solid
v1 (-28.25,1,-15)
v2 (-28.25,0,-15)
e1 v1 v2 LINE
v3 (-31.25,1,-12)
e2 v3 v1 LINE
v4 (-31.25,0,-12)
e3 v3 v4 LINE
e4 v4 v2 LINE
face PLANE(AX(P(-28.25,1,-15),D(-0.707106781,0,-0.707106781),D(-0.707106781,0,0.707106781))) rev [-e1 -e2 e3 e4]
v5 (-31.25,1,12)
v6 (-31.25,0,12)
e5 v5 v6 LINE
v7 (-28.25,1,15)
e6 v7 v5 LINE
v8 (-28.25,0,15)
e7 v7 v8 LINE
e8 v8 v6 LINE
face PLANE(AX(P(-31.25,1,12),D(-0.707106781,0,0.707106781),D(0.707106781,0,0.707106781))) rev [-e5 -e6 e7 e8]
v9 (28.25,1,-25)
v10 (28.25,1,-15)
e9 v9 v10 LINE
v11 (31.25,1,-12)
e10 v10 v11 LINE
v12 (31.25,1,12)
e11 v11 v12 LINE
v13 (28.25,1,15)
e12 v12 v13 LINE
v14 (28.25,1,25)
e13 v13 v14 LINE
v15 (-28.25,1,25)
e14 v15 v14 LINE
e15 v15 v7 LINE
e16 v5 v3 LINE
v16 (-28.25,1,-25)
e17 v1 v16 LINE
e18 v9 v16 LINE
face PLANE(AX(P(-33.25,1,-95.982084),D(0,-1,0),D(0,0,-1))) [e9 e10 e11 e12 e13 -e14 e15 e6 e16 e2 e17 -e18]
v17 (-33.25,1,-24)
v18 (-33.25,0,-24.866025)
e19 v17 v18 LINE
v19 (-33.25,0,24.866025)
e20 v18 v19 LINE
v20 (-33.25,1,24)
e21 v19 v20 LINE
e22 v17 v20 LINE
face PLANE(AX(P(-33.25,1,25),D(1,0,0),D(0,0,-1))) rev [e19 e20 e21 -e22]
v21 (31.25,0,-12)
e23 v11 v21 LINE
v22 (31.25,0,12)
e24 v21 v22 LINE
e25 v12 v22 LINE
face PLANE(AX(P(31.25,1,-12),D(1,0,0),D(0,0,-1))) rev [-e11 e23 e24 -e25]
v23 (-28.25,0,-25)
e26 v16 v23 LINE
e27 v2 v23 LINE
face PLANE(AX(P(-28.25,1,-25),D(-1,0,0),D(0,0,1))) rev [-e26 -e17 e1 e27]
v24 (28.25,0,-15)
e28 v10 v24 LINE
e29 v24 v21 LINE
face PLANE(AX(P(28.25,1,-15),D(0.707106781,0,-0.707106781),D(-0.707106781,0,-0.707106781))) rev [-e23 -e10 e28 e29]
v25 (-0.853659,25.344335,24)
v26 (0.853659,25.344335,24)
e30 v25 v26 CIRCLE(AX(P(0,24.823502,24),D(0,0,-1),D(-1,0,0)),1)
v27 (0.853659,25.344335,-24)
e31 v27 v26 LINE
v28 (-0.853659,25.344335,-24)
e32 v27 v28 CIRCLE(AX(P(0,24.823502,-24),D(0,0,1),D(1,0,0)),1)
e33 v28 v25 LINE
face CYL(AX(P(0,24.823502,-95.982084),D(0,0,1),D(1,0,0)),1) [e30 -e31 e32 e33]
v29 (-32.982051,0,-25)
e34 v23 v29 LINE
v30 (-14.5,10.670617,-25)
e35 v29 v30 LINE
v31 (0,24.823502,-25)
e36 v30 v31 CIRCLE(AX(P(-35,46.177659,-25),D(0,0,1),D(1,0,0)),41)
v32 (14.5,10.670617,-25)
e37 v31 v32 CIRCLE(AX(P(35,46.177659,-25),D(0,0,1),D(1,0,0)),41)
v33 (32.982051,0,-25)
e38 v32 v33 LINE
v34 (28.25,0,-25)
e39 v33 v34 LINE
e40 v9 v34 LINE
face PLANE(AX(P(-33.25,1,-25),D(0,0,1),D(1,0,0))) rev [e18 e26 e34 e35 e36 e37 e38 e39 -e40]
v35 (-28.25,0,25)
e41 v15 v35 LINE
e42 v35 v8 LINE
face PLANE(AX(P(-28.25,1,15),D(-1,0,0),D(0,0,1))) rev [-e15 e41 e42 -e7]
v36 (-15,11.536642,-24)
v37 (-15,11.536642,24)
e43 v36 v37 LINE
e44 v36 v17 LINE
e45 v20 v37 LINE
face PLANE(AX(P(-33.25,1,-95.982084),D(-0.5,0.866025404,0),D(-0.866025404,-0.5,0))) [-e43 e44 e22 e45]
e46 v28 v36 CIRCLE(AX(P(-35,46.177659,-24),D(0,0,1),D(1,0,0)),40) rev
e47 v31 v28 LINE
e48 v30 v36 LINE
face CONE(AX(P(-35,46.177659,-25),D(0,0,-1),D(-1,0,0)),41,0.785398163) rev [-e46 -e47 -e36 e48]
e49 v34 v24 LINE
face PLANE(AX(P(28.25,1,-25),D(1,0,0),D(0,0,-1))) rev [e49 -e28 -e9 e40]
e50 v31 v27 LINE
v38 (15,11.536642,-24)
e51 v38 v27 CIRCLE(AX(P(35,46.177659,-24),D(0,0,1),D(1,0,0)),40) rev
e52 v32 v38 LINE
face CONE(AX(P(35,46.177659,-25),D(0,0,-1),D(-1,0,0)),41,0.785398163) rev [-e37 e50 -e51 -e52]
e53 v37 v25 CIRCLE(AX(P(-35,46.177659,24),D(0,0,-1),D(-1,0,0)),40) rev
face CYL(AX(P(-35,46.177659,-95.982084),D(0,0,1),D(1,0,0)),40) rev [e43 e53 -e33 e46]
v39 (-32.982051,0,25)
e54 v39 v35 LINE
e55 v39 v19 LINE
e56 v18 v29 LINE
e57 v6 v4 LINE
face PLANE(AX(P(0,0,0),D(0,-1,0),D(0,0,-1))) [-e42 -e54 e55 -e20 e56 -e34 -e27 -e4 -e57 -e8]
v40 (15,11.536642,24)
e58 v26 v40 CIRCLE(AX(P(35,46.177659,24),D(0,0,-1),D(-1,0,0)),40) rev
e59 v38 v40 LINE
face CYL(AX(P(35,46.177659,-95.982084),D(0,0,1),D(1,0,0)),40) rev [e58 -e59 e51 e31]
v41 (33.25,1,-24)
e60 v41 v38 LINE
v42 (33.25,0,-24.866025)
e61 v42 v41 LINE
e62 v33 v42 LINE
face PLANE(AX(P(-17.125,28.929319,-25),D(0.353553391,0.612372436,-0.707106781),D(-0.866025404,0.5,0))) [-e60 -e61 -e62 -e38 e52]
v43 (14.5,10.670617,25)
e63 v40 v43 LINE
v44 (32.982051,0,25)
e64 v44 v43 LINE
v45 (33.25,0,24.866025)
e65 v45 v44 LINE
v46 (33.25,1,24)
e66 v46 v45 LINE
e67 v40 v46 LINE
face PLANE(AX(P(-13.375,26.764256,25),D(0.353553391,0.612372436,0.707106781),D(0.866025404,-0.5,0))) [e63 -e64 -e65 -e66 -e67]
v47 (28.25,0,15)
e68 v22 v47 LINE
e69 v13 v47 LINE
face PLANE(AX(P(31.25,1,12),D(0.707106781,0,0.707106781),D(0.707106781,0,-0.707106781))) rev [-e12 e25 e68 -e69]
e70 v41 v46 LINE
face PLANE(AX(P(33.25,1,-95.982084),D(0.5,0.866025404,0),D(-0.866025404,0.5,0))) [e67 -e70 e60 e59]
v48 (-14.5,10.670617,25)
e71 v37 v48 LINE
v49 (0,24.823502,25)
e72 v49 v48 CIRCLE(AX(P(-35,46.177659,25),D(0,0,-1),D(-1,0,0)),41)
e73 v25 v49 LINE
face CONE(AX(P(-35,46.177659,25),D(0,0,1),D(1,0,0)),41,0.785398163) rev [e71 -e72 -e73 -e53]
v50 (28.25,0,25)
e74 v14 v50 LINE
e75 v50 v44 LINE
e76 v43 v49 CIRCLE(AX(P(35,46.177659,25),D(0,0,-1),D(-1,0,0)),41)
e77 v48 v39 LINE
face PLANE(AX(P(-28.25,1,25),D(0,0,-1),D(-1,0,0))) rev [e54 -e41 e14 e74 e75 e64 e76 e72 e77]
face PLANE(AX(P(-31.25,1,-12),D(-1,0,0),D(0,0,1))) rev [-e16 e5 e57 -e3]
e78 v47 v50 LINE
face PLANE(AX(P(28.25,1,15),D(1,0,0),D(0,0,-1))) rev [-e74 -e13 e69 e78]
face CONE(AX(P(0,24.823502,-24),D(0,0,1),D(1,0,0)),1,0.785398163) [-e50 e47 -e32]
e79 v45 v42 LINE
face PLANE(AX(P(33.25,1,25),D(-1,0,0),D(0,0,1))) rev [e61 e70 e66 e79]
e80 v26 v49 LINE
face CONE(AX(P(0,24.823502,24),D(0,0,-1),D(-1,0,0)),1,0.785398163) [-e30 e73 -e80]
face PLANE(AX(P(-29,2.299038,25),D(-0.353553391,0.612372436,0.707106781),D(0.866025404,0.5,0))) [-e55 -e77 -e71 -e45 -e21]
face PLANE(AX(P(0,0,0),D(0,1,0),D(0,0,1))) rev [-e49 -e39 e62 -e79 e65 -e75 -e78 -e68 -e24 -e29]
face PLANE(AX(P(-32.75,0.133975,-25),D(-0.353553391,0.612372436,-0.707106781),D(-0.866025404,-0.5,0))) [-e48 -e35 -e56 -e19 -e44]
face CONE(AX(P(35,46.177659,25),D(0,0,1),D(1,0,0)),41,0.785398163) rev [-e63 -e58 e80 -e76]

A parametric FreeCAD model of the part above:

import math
import FreeCAD as App
import Part
import Sketcher

V = App.Vector
Q = App.Units.Quantity


def edges_at(feature, points):
    """Names of the edges that pass closest to the given points."""
    edges = feature.Shape.Edges
    near = lambda p: min(range(len(edges)), key=lambda i: edges[i].distToShape(Part.Vertex(*p))[0])
    return sorted({f"Edge{near(p) + 1}" for p in points})

doc = App.newDocument("Part")
body = doc.addObject("PartDesign::Body", "Body")

sketch1 = body.newObject("Sketcher::SketchObject", "Sketch")
sketch1.AttachmentSupport = (doc.getObject("XZ_Plane"), [""])
sketch1.MapMode = "FlatFace"
sketch1.addGeometry(Part.LineSegment(V(-28.25, -15, 0), V(-28.25, -25, 0)), False)
sketch1.addGeometry(Part.LineSegment(V(-28.25, -25, 0), V(-33.25, -25, 0)), False)
sketch1.addGeometry(Part.LineSegment(V(-33.25, -25, 0), V(-33.25, 25, 0)), False)
sketch1.addGeometry(Part.LineSegment(V(-33.25, 25, 0), V(-28.25, 25, 0)), False)
sketch1.addGeometry(Part.LineSegment(V(-28.25, 25, 0), V(-28.25, 15, 0)), False)
sketch1.addGeometry(Part.LineSegment(V(-28.25, 15, 0), V(-31.25, 12, 0)), False)
sketch1.addGeometry(Part.LineSegment(V(-31.25, 12, 0), V(-31.25, -12, 0)), False)
sketch1.addGeometry(Part.LineSegment(V(-31.25, -12, 0), V(-28.25, -15, 0)), False)
sketch1.addConstraint(Sketcher.Constraint("Coincident", 0, 2, 1, 1))
sketch1.addConstraint(Sketcher.Constraint("Coincident", 1, 2, 2, 1))
sketch1.addConstraint(Sketcher.Constraint("Coincident", 2, 2, 3, 1))
sketch1.addConstraint(Sketcher.Constraint("Coincident", 3, 2, 4, 1))
sketch1.addConstraint(Sketcher.Constraint("Coincident", 4, 2, 5, 1))
sketch1.addConstraint(Sketcher.Constraint("Coincident", 5, 2, 6, 1))
sketch1.addConstraint(Sketcher.Constraint("Coincident", 6, 2, 7, 1))
sketch1.addConstraint(Sketcher.Constraint("Coincident", 7, 2, 0, 1))
sketch1.addConstraint(Sketcher.Constraint("Vertical", 0))
sketch1.addConstraint(Sketcher.Constraint("Horizontal", 1))
sketch1.addConstraint(Sketcher.Constraint("Vertical", 2))
sketch1.addConstraint(Sketcher.Constraint("Horizontal", 3))
sketch1.addConstraint(Sketcher.Constraint("Vertical", 4))
sketch1.addConstraint(Sketcher.Constraint("Vertical", 6))
sketch1.addConstraint(Sketcher.Constraint("Symmetric", 0, 2, 3, 2, -1))
sketch1.addConstraint(Sketcher.Constraint("Perpendicular", 5, 7))
sketch1.addConstraint(Sketcher.Constraint("Equal", 0, 4))
sketch1.addConstraint(Sketcher.Constraint("Equal", 5, 7))
sketch1.addConstraint(Sketcher.Constraint("DistanceX", 1, 2, 1, 1, Q("5 mm")))
sketch1.addConstraint(Sketcher.Constraint("DistanceY", 0, 2, 0, 1, Q("10 mm")))
sketch1.addConstraint(Sketcher.Constraint("DistanceY", 2, 1, 2, 2, Q("50 mm")))
sketch1.addConstraint(Sketcher.Constraint("DistanceY", 6, 2, 6, 1, Q("24 mm")))
sketch1.addConstraint(Sketcher.Constraint("DistanceX", 0, 2, -1, 1, Q("28.25 mm")))
pad1 = body.newObject("PartDesign::Pad", "Pad")
pad1.Profile = sketch1
pad1.Length = 1
pad1.Reversed = True
body2 = doc.addObject("PartDesign::Body", "Body001")

sketch2 = body2.newObject("Sketcher::SketchObject", "Sketch001")
sketch2.AttachmentSupport = (doc.getObject("XZ_Plane001"), [""])
sketch2.MapMode = "FlatFace"
sketch2.addGeometry(Part.LineSegment(V(33.25, -25, 0), V(28.25, -25, 0)), False)
sketch2.addGeometry(Part.LineSegment(V(28.25, -25, 0), V(28.25, -15, 0)), False)
sketch2.addGeometry(Part.LineSegment(V(28.25, -15, 0), V(31.25, -12, 0)), False)
sketch2.addGeometry(Part.LineSegment(V(31.25, -12, 0), V(31.25, 12, 0)), False)
sketch2.addGeometry(Part.LineSegment(V(31.25, 12, 0), V(28.25, 15, 0)), False)
sketch2.addGeometry(Part.LineSegment(V(28.25, 15, 0), V(28.25, 25, 0)), False)
sketch2.addGeometry(Part.LineSegment(V(28.25, 25, 0), V(33.25, 25, 0)), False)
sketch2.addGeometry(Part.LineSegment(V(33.25, 25, 0), V(33.25, -25, 0)), False)
sketch2.addConstraint(Sketcher.Constraint("Coincident", 0, 2, 1, 1))
sketch2.addConstraint(Sketcher.Constraint("Coincident", 1, 2, 2, 1))
sketch2.addConstraint(Sketcher.Constraint("Coincident", 2, 2, 3, 1))
sketch2.addConstraint(Sketcher.Constraint("Coincident", 3, 2, 4, 1))
sketch2.addConstraint(Sketcher.Constraint("Coincident", 4, 2, 5, 1))
sketch2.addConstraint(Sketcher.Constraint("Coincident", 5, 2, 6, 1))
sketch2.addConstraint(Sketcher.Constraint("Coincident", 6, 2, 7, 1))
sketch2.addConstraint(Sketcher.Constraint("Coincident", 7, 2, 0, 1))
sketch2.addConstraint(Sketcher.Constraint("Horizontal", 0))
sketch2.addConstraint(Sketcher.Constraint("Vertical", 1))
sketch2.addConstraint(Sketcher.Constraint("Vertical", 3))
sketch2.addConstraint(Sketcher.Constraint("Vertical", 5))
sketch2.addConstraint(Sketcher.Constraint("Horizontal", 6))
sketch2.addConstraint(Sketcher.Constraint("Vertical", 7))
sketch2.addConstraint(Sketcher.Constraint("Symmetric", 1, 2, 4, 2, -1))
sketch2.addConstraint(Sketcher.Constraint("Perpendicular", 2, 4))
sketch2.addConstraint(Sketcher.Constraint("Equal", 1, 5))
sketch2.addConstraint(Sketcher.Constraint("Equal", 2, 4))
sketch2.addConstraint(Sketcher.Constraint("DistanceX", 0, 2, 0, 1, Q("5 mm")))
sketch2.addConstraint(Sketcher.Constraint("DistanceY", 1, 1, 1, 2, Q("10 mm")))
sketch2.addConstraint(Sketcher.Constraint("DistanceY", 3, 1, 3, 2, Q("24 mm")))
sketch2.addConstraint(Sketcher.Constraint("DistanceY", 7, 2, 7, 1, Q("50 mm")))
sketch2.addConstraint(Sketcher.Constraint("DistanceX", -1, 1, 0, 2, Q("28.25 mm")))
pad2 = body2.newObject("PartDesign::Pad", "Pad001")
pad2.Profile = sketch2
pad2.Length = 1
pad2.Reversed = True
body.AllowCompound = True
doc.recompute()

boolean = body.newObject("PartDesign::Boolean", "Boolean")
boolean.Type = "Fuse"
boolean.addObjects([body2])

sketch3 = body.newObject("Sketcher::SketchObject", "Sketch002")
sketch3.AttachmentSupport = (doc.getObject("XY_Plane"), [""])
sketch3.MapMode = "FlatFace"
sketch3.AttachmentOffset = App.Placement(V(0, 0, 25), App.Rotation())
sketch3.addGeometry(Part.LineSegment(V(-33.25, 1, 0), V(33.25, 1, 0)), False)
sketch3.addGeometry(Part.LineSegment(V(33.25, 1, 0), V(15, 11.536642, 0)), False)
sketch3.addGeometry(Part.ArcOfCircle(Part.Circle(V(35, 46.177659, 0), V(0, 0, 1), 40), math.radians(-148.61185), math.radians(-120)), False)
sketch3.addGeometry(Part.ArcOfCircle(Part.Circle(V(0, 24.823502, 0), V(0, 0, 1), 1), math.radians(31.38815), math.radians(148.61185)), False)
sketch3.addGeometry(Part.ArcOfCircle(Part.Circle(V(-35, 46.177659, 0), V(0, 0, 1), 40), math.radians(-60), math.radians(-31.38815)), False)
sketch3.addGeometry(Part.LineSegment(V(-15, 11.536642, 0), V(-33.25, 1, 0)), False)
sketch3.addConstraint(Sketcher.Constraint("Coincident", 0, 2, 1, 1))
sketch3.addConstraint(Sketcher.Constraint("Tangent", 1, 2, 2, 2))
sketch3.addConstraint(Sketcher.Constraint("Tangent", 2, 1, 3, 1))
sketch3.addConstraint(Sketcher.Constraint("Tangent", 3, 2, 4, 2))
sketch3.addConstraint(Sketcher.Constraint("Tangent", 4, 1, 5, 1))
sketch3.addConstraint(Sketcher.Constraint("Coincident", 5, 2, 0, 1))
sketch3.addConstraint(Sketcher.Constraint("Horizontal", 0))
sketch3.addConstraint(Sketcher.Constraint("Equal", 2, 4))
sketch3.addConstraint(Sketcher.Constraint("Symmetric", 2, 3, 4, 3, -2))
sketch3.addConstraint(Sketcher.Constraint("Horizontal", 1, 2, 4, 1))
sketch3.addConstraint(Sketcher.Constraint("Radius", 2, Q("40 mm")))
sketch3.addConstraint(Sketcher.Constraint("Radius", 3, Q("1 mm")))
sketch3.addConstraint(Sketcher.Constraint("Angle", 1, Q("150 deg")))
sketch3.addConstraint(Sketcher.Constraint("DistanceX", 0, 1, 0, 2, Q("66.5 mm")))
sketch3.addConstraint(Sketcher.Constraint("DistanceX", -1, 1, 2, 3, Q("35 mm")))
sketch3.addConstraint(Sketcher.Constraint("DistanceY", -1, 1, 0, 2, Q("1 mm")))
pad3 = body.newObject("PartDesign::Pad", "Pad002")
pad3.Profile = sketch3
pad3.Length = 50
pad3.Reversed = True
doc.recompute()

chamfer = body.newObject("PartDesign::Chamfer", "Chamfer")
chamfer.Base = (pad3, edges_at(pad3, [
    (24.125, 6.268, -25),
    (24.125, 6.268, 25),
    (7.06, 17.553, -25),
    (7.06, 17.553, 25),
    (0, 25.824, -25),
    (0, 25.824, 25),
    (-24.125, 6.268, -25),
    (-24.125, 6.268, 25),
    (-7.06, 17.553, -25),
    (-7.06, 17.553, 25),
]))
chamfer.Size = 1

doc.recompute()
